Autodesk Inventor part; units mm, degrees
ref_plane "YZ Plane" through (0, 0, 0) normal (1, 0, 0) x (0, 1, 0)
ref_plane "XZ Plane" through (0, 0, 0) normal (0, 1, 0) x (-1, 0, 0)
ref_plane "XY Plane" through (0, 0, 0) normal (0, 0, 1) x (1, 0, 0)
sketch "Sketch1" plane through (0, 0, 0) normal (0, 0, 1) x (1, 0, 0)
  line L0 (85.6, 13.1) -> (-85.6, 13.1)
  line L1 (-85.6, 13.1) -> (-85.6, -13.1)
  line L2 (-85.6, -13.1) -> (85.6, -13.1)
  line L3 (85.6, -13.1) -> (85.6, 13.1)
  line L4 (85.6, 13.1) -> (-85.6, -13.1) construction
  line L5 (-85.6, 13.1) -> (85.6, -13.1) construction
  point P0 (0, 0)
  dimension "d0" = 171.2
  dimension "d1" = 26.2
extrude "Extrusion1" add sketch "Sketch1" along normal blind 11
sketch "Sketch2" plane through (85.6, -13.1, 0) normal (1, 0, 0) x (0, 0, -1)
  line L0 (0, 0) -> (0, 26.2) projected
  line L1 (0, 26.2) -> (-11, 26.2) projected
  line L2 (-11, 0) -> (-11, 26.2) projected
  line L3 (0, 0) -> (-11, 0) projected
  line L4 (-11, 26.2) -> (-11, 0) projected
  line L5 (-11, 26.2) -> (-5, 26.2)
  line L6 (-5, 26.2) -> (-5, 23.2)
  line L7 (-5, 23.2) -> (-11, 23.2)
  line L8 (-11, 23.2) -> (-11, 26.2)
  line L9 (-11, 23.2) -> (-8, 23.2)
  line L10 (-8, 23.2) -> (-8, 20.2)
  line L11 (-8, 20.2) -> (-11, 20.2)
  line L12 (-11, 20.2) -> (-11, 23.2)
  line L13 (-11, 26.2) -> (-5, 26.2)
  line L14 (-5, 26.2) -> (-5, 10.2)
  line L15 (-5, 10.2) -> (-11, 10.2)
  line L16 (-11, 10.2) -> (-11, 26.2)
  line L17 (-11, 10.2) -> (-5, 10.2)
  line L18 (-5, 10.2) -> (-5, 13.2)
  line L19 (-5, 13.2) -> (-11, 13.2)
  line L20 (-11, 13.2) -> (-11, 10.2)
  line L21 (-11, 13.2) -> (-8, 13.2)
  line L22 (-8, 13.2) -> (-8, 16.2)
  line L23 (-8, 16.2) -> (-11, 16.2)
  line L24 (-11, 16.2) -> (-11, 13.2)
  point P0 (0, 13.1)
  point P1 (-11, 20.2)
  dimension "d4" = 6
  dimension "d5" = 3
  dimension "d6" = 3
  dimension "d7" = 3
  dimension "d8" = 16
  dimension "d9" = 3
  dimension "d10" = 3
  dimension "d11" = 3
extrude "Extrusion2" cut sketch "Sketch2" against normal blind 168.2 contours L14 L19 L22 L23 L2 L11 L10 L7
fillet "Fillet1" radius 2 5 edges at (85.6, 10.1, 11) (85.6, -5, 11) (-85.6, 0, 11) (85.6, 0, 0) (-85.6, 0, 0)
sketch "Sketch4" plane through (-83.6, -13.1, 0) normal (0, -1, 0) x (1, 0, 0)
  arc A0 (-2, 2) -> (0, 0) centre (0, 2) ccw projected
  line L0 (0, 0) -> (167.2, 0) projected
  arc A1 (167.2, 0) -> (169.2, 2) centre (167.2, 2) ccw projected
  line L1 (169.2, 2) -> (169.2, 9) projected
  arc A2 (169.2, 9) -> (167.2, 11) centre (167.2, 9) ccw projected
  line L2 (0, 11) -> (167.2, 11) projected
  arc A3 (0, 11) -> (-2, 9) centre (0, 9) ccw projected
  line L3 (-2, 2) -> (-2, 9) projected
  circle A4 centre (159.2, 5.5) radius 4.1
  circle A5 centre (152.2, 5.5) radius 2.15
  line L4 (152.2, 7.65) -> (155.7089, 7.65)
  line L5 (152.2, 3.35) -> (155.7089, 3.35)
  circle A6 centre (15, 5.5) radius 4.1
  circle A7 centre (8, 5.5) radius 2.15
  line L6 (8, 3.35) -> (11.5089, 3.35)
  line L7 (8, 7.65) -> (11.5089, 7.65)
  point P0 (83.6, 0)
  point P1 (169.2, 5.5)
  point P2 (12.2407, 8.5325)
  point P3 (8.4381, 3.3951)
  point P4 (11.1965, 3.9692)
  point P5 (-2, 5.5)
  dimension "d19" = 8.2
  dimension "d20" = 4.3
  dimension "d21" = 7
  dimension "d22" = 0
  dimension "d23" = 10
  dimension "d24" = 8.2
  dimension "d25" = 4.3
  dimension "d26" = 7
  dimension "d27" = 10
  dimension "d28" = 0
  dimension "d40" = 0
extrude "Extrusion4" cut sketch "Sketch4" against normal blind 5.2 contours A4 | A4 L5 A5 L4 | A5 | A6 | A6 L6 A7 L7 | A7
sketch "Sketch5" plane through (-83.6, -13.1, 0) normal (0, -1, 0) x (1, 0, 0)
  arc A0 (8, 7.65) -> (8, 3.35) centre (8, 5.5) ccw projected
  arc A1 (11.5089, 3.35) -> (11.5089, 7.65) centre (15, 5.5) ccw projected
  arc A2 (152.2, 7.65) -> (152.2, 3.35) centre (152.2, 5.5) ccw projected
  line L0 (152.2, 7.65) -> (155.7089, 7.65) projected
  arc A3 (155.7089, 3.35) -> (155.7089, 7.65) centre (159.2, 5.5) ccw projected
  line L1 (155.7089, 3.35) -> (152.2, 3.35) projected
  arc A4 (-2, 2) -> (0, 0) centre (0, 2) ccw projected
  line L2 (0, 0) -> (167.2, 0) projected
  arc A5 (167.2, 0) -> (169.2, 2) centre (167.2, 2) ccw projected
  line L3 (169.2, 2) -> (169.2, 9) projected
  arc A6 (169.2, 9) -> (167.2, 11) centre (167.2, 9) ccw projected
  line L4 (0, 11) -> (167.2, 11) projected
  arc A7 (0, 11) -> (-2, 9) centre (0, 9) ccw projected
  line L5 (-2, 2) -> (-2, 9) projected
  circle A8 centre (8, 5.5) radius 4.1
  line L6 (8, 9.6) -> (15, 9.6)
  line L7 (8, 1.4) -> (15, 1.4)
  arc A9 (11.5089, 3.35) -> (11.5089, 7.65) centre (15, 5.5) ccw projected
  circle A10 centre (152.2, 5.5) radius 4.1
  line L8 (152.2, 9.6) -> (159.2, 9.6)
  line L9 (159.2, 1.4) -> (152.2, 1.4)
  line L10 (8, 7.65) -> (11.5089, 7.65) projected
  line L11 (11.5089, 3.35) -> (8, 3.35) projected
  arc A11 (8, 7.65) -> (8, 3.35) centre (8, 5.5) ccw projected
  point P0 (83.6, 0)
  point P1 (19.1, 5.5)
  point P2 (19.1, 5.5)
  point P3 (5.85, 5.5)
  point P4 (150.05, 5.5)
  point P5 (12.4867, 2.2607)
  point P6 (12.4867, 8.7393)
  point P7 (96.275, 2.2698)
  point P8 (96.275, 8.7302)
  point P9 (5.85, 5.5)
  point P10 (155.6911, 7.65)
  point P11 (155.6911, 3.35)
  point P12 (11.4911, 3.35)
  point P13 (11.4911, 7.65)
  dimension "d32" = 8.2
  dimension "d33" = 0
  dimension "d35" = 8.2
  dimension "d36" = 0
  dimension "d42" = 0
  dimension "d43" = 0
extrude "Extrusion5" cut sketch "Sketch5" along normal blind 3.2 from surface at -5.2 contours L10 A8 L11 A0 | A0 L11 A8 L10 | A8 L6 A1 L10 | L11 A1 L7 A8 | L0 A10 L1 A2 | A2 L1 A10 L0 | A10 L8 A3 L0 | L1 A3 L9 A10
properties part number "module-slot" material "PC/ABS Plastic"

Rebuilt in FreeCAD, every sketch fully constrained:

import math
import FreeCAD as App
import Part
import Sketcher
from FreeCAD import Vector


def edges_at(feature, points):
    """Names of the edges that pass closest to the given points."""
    edges = feature.Shape.Edges
    near = lambda p: min(range(len(edges)), key=lambda i: edges[i].distToShape(Part.Vertex(*p))[0])
    return sorted({f"Edge{near(p) + 1}" for p in points})

doc = App.newDocument("Part")
body = doc.addObject("PartDesign::Body", "Body")

# Sketch on XY plane
sketch1 = doc.addObject("Sketcher::SketchObject", "Sketch")
body.addObject(sketch1)
sketch1.AttachmentSupport = (doc.XY_Plane, [""])
sketch1.MapMode = "FlatFace"
sketch1.addGeometry([
    Part.LineSegment(Vector(86, -13, 0), Vector(86, 13, 0)),
    Part.LineSegment(Vector(86, 13, 0), Vector(-86, 13, 0)),
    Part.LineSegment(Vector(-86, 13, 0), Vector(-86, -13, 0)),
    Part.LineSegment(Vector(-86, -13, 0), Vector(86, -13, 0)),
], False)
sketch1.addConstraint([
    Sketcher.Constraint("Coincident", 0, 2, 1, 1),
    Sketcher.Constraint("Coincident", 1, 2, 2, 1),
    Sketcher.Constraint("Coincident", 2, 2, 3, 1),
    Sketcher.Constraint("Coincident", 3, 2, 0, 1),
    Sketcher.Constraint("Vertical", 0),
    Sketcher.Constraint("Horizontal", 1),
    Sketcher.Constraint("Vertical", 2),
    Sketcher.Constraint("Horizontal", 3),
    Sketcher.Constraint("Symmetric", 0, 2, 2, 2, -1, 1),
    Sketcher.Constraint("DistanceX", 1, 2, 1, 1, 171.2),
    Sketcher.Constraint("DistanceY", 0, 1, 0, 2, 26.2),
])
pad1 = doc.addObject("PartDesign::Pad", "Pad")
body.addObject(pad1)
pad1.Profile = sketch1
pad1.Length = 11

# Sketch on YZ plane
sketch2 = doc.addObject("Sketcher::SketchObject", "Sketch001")
body.addObject(sketch2)
sketch2.AttachmentSupport = (doc.YZ_Plane, [""])
sketch2.MapMode = "FlatFace"
sketch2.AttachmentOffset = App.Placement(Vector(0, 0, 85.6), App.Rotation())
sketch2.addGeometry([
    Part.LineSegment(Vector(0.1, 5, 0), Vector(10.1, 5, 0)),  # 0
    Part.LineSegment(Vector(10.1, 5, 0), Vector(10.1, 8, 0)),  # 1
    Part.LineSegment(Vector(10.1, 8, 0), Vector(7.1, 8, 0)),  # 2
    Part.LineSegment(Vector(7.1, 8, 0), Vector(7.1, 11, 0)),  # 3
    Part.LineSegment(Vector(7.1, 11, 0), Vector(3.1, 11, 0)),  # 4
    Part.LineSegment(Vector(3.1, 11, 0), Vector(3.1, 8, 0)),  # 5
    Part.LineSegment(Vector(3.1, 8, 0), Vector(0.1, 8, 0)),  # 6
    Part.LineSegment(Vector(0.1, 8, 0), Vector(0.1, 5, 0)),  # 7
], False)
sketch2.addConstraint([
    Sketcher.Constraint("Coincident", 0, 2, 1, 1),
    Sketcher.Constraint("Coincident", 1, 2, 2, 1),
    Sketcher.Constraint("Coincident", 2, 2, 3, 1),
    Sketcher.Constraint("Coincident", 3, 2, 4, 1),
    Sketcher.Constraint("Coincident", 4, 2, 5, 1),
    Sketcher.Constraint("Coincident", 5, 2, 6, 1),
    Sketcher.Constraint("Coincident", 6, 2, 7, 1),
    Sketcher.Constraint("Coincident", 7, 2, 0, 1),
    Sketcher.Constraint("Horizontal", 0),
    Sketcher.Constraint("Vertical", 1),
    Sketcher.Constraint("Horizontal", 2),
    Sketcher.Constraint("Vertical", 3),
    Sketcher.Constraint("Horizontal", 4),
    Sketcher.Constraint("Vertical", 5),
    Sketcher.Constraint("Horizontal", 6),
    Sketcher.Constraint("Vertical", 7),
    Sketcher.Constraint("Horizontal", 2, 2, 5, 2),
    Sketcher.Constraint("Equal", 2, 6),
    Sketcher.Constraint("Equal", 6, 1),
    Sketcher.Constraint("Equal", 1, 3),
    Sketcher.Constraint("DistanceX", 2, 2, 2, 1, 3.0),
    Sketcher.Constraint("DistanceX", 0, 1, 0, 2, 10.0),
    Sketcher.Constraint("DistanceY", -1, 1, 0, 2, 5.0),
    Sketcher.Constraint("DistanceX", -1, 1, 0, 2, 10.1),
])
pocket1 = doc.addObject("PartDesign::Pocket", "Pocket")
body.addObject(pocket1)
pocket1.Profile = sketch2
pocket1.Length = 168.2
doc.recompute()

fillet = doc.addObject("PartDesign::Fillet", "Fillet")
body.addObject(fillet)
fillet.Base = (pocket1, edges_at(pocket1, [
    (85.6, 10.1, 11),
    (85.6, -5, 11),
    (-85.6, 0, 11),
    (85.6, 0, 0),
    (-85.6, 0, 0),
]))
fillet.Radius = 2

# Sketch on XZ plane
sketch3 = doc.addObject("Sketcher::SketchObject", "Sketch002")
body.addObject(sketch3)
sketch3.AttachmentSupport = (doc.XZ_Plane, [""])
sketch3.MapMode = "FlatFace"
sketch3.AttachmentOffset = App.Placement(Vector(0, 0, 13.1), App.Rotation())
sketch3.addGeometry([
    Part.ArcOfCircle(Part.Circle(Vector(75.6, 5.5, 0), Vector(0, 0, 1), 4.1), math.radians(-148), math.radians(148)),  # 0
    Part.LineSegment(Vector(72.1, 7.7, 0), Vector(68.6, 7.7, 0)),  # 1
    Part.ArcOfCircle(Part.Circle(Vector(68.6, 5.5, 0), Vector(0, 0, 1), 2.1), math.radians(90), math.radians(270)),  # 2
    Part.LineSegment(Vector(68.6, 3.4, 0), Vector(72.1, 3.4, 0)),  # 3
    Part.ArcOfCircle(Part.Circle(Vector(-68.6, 5.5, 0), Vector(0, 0, 1), 4.1), math.radians(-148), math.radians(148)),  # 4
    Part.LineSegment(Vector(-72.1, 7.7, 0), Vector(-75.6, 7.7, 0)),  # 5
    Part.ArcOfCircle(Part.Circle(Vector(-75.6, 5.5, 0), Vector(0, 0, 1), 2.1), math.radians(90), math.radians(270)),  # 6
    Part.LineSegment(Vector(-75.6, 3.4, 0), Vector(-72.1, 3.4, 0)),  # 7
], False)
sketch3.addConstraint([
    Sketcher.Constraint("Coincident", 0, 2, 1, 1),
    Sketcher.Constraint("Tangent", 1, 2, 2, 1),
    Sketcher.Constraint("Tangent", 2, 2, 3, 1),
    Sketcher.Constraint("Coincident", 3, 2, 0, 1),
    Sketcher.Constraint("Coincident", 4, 2, 5, 1),
    Sketcher.Constraint("Tangent", 5, 2, 6, 1),
    Sketcher.Constraint("Tangent", 6, 2, 7, 1),
    Sketcher.Constraint("Coincident", 7, 2, 4, 1),
    Sketcher.Constraint("Horizontal", 1),
    Sketcher.Constraint("Horizontal", 3),
    Sketcher.Constraint("Horizontal", 5),
    Sketcher.Constraint("Horizontal", 7),
    Sketcher.Constraint("Equal", 0, 4),
    Sketcher.Constraint("Equal", 2, 6),
    Sketcher.Constraint("Symmetric", 2, 3, 4, 3, -2),
    Sketcher.Constraint("Symmetric", 0, 3, 6, 3, -2),
    Sketcher.Constraint("Horizontal", 0, 3, 2, 3),
    Sketcher.Constraint("Radius", 0, 4.1),
    Sketcher.Constraint("Radius", 2, 2.15),
    Sketcher.Constraint("DistanceX", 2, 3, 0, 3, 7.0),
    Sketcher.Constraint("DistanceX", -1, 1, 0, 3, 75.6),
    Sketcher.Constraint("DistanceY", -1, 1, 0, 3, 5.5),
])
pocket2 = doc.addObject("PartDesign::Pocket", "Pocket001")
body.addObject(pocket2)
pocket2.Profile = sketch3
pocket2.Length = 5.2

# Sketch on XZ plane
sketch4 = doc.addObject("Sketcher::SketchObject", "Sketch003")
body.addObject(sketch4)
sketch4.AttachmentSupport = (doc.XZ_Plane, [""])
sketch4.MapMode = "FlatFace"
sketch4.AttachmentOffset = App.Placement(Vector(0, 0, 7.9), App.Rotation())
sketch4.addGeometry([
    Part.LineSegment(Vector(-72.109, 7.65, 0), Vector(-72.091, 7.65, 0)),  # 0
    Part.ArcOfCircle(Part.Circle(Vector(-68.6, 5.5, 0), Vector(0, 0, 1), 4.1), math.radians(90), math.radians(148)),  # 1
    Part.LineSegment(Vector(-68.6, 9.6, 0), Vector(-75.6, 9.6, 0)),  # 2
    Part.ArcOfCircle(Part.Circle(Vector(-75.6, 5.5, 0), Vector(0, 0, 1), 4.1), math.radians(90), math.radians(270)),  # 3
    Part.LineSegment(Vector(-75.6, 1.4, 0), Vector(-68.6, 1.4, 0)),  # 4
    Part.ArcOfCircle(Part.Circle(Vector(-68.6, 5.5, 0), Vector(0, 0, 1), 4.1), math.radians(-148), math.radians(-90)),  # 5
    Part.LineSegment(Vector(-72.091, 3.35, 0), Vector(-72.109, 3.35, 0)),  # 6
    Part.ArcOfCircle(Part.Circle(Vector(-75.6, 5.5, 0), Vector(0, 0, 1), 4.1), math.radians(-32), math.radians(32)),  # 7
    Part.LineSegment(Vector(72.091, 7.65, 0), Vector(72.109, 7.65, 0)),  # 8
    Part.ArcOfCircle(Part.Circle(Vector(75.6, 5.5, 0), Vector(0, 0, 1), 4.1), math.radians(90), math.radians(148)),  # 9
    Part.LineSegment(Vector(75.6, 9.6, 0), Vector(68.6, 9.6, 0)),  # 10
    Part.ArcOfCircle(Part.Circle(Vector(68.6, 5.5, 0), Vector(0, 0, 1), 4.1), math.radians(90), math.radians(270)),  # 11
    Part.LineSegment(Vector(68.6, 1.4, 0), Vector(75.6, 1.4, 0)),  # 12
    Part.ArcOfCircle(Part.Circle(Vector(75.6, 5.5, 0), Vector(0, 0, 1), 4.1), math.radians(-148), math.radians(-90)),  # 13
    Part.LineSegment(Vector(72.109, 3.35, 0), Vector(72.091, 3.35, 0)),  # 14
    Part.ArcOfCircle(Part.Circle(Vector(68.6, 5.5, 0), Vector(0, 0, 1), 4.1), math.radians(-32), math.radians(32)),  # 15
], False)
sketch4.addConstraint([
    Sketcher.Constraint("Coincident", 0, 2, 1, 2),
    Sketcher.Constraint("Tangent", 1, 1, 2, 1),
    Sketcher.Constraint("Tangent", 2, 2, 3, 1),
    Sketcher.Constraint("Tangent", 3, 2, 4, 1),
    Sketcher.Constraint("Tangent", 4, 2, 5, 2),
    Sketcher.Constraint("Coincident", 5, 1, 6, 1),
    Sketcher.Constraint("Coincident", 6, 2, 7, 1),
    Sketcher.Constraint("Coincident", 7, 2, 0, 1),
    Sketcher.Constraint("Coincident", 8, 2, 9, 2),
    Sketcher.Constraint("Tangent", 9, 1, 10, 1),
    Sketcher.Constraint("Tangent", 10, 2, 11, 1),
    Sketcher.Constraint("Tangent", 11, 2, 12, 1),
    Sketcher.Constraint("Tangent", 12, 2, 13, 2),
    Sketcher.Constraint("Coincident", 13, 1, 14, 1),
    Sketcher.Constraint("Coincident", 14, 2, 15, 1),
    Sketcher.Constraint("Coincident", 15, 2, 8, 1),
    Sketcher.Constraint("Horizontal", 0),
    Sketcher.Constraint("Horizontal", 2),
    Sketcher.Constraint("Horizontal", 4),
    Sketcher.Constraint("Horizontal", 6),
    Sketcher.Constraint("Horizontal", 8),
    Sketcher.Constraint("Horizontal", 10),
    Sketcher.Constraint("Horizontal", 12),
    Sketcher.Constraint("Horizontal", 14),
    Sketcher.Constraint("Coincident", 5, 3, 1, 3),
    Sketcher.Constraint("Coincident", 7, 3, 3, 3),
    Sketcher.Constraint("Coincident", 13, 3, 9, 3),
    Sketcher.Constraint("Coincident", 15, 3, 11, 3),
    Sketcher.Constraint("Equal", 1, 3),
    Sketcher.Constraint("Equal", 5, 7),
    Sketcher.Constraint("Equal", 7, 9),
    Sketcher.Constraint("Equal", 9, 11),
    Sketcher.Constraint("Equal", 13, 15),
    Sketcher.Constraint("Symmetric", 3, 3, 9, 3, -2),
    Sketcher.Constraint("Symmetric", 5, 1, 14, 2, -2),
    Sketcher.Constraint("Horizontal", 7, 2, 8, 2),
    Sketcher.Constraint("Vertical", 0, 2, 5, 1),
    Sketcher.Constraint("Radius", 1, 4.1),
    Sketcher.Constraint("DistanceX", 2, 2, 2, 1, 7.0),
    Sketcher.Constraint("DistanceX", 1, 3, -1, 1, 68.6),
    Sketcher.Constraint("DistanceY", -1, 1, 1, 3, 5.5),
    Sketcher.Constraint("DistanceY", -1, 1, 0, 2, 7.65),
])
pocket3 = doc.addObject("PartDesign::Pocket", "Pocket002")
body.addObject(pocket3)
pocket3.Profile = sketch4
pocket3.Length = 3.2
pocket3.Reversed = True

doc.recompute()
